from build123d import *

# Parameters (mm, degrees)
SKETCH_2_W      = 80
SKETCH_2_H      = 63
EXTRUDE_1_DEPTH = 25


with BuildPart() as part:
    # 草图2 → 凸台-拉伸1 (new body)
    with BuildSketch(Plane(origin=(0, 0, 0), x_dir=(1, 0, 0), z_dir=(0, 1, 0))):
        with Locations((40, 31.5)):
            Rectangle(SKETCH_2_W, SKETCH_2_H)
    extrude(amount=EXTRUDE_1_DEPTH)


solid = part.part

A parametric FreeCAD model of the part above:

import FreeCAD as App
import Part
import Sketcher

V = App.Vector
Q = App.Units.Quantity

doc = App.newDocument("Part")
body = doc.addObject("PartDesign::Body", "Body")

# Sketch on XZ plane
sketch1 = body.newObject("Sketcher::SketchObject", "Sketch")
sketch1.AttachmentSupport = (doc.getObject("XZ_Plane"), [""])
sketch1.MapMode = "FlatFace"
sketch1.addGeometry(Part.LineSegment(V(0, -63, 0), V(0, 0, 0)), False)
sketch1.addGeometry(Part.LineSegment(V(0, 0, 0), V(80, 0, 0)), False)
sketch1.addGeometry(Part.LineSegment(V(80, 0, 0), V(80, -63, 0)), False)
sketch1.addGeometry(Part.LineSegment(V(80, -63, 0), V(0, -63, 0)), False)
sketch1.addConstraint(Sketcher.Constraint("Coincident", 0, 2, 1, 1))
sketch1.addConstraint(Sketcher.Constraint("Coincident", 1, 2, 2, 1))
sketch1.addConstraint(Sketcher.Constraint("Coincident", 2, 2, 3, 1))
sketch1.addConstraint(Sketcher.Constraint("Coincident", 3, 2, 0, 1))
sketch1.addConstraint(Sketcher.Constraint("Vertical", 0))
sketch1.addConstraint(Sketcher.Constraint("Horizontal", 1))
sketch1.addConstraint(Sketcher.Constraint("Vertical", 2))
sketch1.addConstraint(Sketcher.Constraint("Horizontal", 3))
sketch1.addConstraint(Sketcher.Constraint("Coincident", 0, 2, -1, 1))
sketch1.addConstraint(Sketcher.Constraint("DistanceX", 1, 1, 1, 2, Q("80 mm")))
sketch1.addConstraint(Sketcher.Constraint("DistanceY", 0, 1, 0, 2, Q("63 mm")))
pad1 = body.newObject("PartDesign::Pad", "Pad")
pad1.Profile = sketch1
pad1.Length = 25
pad1.Reversed = True

doc.recompute()
